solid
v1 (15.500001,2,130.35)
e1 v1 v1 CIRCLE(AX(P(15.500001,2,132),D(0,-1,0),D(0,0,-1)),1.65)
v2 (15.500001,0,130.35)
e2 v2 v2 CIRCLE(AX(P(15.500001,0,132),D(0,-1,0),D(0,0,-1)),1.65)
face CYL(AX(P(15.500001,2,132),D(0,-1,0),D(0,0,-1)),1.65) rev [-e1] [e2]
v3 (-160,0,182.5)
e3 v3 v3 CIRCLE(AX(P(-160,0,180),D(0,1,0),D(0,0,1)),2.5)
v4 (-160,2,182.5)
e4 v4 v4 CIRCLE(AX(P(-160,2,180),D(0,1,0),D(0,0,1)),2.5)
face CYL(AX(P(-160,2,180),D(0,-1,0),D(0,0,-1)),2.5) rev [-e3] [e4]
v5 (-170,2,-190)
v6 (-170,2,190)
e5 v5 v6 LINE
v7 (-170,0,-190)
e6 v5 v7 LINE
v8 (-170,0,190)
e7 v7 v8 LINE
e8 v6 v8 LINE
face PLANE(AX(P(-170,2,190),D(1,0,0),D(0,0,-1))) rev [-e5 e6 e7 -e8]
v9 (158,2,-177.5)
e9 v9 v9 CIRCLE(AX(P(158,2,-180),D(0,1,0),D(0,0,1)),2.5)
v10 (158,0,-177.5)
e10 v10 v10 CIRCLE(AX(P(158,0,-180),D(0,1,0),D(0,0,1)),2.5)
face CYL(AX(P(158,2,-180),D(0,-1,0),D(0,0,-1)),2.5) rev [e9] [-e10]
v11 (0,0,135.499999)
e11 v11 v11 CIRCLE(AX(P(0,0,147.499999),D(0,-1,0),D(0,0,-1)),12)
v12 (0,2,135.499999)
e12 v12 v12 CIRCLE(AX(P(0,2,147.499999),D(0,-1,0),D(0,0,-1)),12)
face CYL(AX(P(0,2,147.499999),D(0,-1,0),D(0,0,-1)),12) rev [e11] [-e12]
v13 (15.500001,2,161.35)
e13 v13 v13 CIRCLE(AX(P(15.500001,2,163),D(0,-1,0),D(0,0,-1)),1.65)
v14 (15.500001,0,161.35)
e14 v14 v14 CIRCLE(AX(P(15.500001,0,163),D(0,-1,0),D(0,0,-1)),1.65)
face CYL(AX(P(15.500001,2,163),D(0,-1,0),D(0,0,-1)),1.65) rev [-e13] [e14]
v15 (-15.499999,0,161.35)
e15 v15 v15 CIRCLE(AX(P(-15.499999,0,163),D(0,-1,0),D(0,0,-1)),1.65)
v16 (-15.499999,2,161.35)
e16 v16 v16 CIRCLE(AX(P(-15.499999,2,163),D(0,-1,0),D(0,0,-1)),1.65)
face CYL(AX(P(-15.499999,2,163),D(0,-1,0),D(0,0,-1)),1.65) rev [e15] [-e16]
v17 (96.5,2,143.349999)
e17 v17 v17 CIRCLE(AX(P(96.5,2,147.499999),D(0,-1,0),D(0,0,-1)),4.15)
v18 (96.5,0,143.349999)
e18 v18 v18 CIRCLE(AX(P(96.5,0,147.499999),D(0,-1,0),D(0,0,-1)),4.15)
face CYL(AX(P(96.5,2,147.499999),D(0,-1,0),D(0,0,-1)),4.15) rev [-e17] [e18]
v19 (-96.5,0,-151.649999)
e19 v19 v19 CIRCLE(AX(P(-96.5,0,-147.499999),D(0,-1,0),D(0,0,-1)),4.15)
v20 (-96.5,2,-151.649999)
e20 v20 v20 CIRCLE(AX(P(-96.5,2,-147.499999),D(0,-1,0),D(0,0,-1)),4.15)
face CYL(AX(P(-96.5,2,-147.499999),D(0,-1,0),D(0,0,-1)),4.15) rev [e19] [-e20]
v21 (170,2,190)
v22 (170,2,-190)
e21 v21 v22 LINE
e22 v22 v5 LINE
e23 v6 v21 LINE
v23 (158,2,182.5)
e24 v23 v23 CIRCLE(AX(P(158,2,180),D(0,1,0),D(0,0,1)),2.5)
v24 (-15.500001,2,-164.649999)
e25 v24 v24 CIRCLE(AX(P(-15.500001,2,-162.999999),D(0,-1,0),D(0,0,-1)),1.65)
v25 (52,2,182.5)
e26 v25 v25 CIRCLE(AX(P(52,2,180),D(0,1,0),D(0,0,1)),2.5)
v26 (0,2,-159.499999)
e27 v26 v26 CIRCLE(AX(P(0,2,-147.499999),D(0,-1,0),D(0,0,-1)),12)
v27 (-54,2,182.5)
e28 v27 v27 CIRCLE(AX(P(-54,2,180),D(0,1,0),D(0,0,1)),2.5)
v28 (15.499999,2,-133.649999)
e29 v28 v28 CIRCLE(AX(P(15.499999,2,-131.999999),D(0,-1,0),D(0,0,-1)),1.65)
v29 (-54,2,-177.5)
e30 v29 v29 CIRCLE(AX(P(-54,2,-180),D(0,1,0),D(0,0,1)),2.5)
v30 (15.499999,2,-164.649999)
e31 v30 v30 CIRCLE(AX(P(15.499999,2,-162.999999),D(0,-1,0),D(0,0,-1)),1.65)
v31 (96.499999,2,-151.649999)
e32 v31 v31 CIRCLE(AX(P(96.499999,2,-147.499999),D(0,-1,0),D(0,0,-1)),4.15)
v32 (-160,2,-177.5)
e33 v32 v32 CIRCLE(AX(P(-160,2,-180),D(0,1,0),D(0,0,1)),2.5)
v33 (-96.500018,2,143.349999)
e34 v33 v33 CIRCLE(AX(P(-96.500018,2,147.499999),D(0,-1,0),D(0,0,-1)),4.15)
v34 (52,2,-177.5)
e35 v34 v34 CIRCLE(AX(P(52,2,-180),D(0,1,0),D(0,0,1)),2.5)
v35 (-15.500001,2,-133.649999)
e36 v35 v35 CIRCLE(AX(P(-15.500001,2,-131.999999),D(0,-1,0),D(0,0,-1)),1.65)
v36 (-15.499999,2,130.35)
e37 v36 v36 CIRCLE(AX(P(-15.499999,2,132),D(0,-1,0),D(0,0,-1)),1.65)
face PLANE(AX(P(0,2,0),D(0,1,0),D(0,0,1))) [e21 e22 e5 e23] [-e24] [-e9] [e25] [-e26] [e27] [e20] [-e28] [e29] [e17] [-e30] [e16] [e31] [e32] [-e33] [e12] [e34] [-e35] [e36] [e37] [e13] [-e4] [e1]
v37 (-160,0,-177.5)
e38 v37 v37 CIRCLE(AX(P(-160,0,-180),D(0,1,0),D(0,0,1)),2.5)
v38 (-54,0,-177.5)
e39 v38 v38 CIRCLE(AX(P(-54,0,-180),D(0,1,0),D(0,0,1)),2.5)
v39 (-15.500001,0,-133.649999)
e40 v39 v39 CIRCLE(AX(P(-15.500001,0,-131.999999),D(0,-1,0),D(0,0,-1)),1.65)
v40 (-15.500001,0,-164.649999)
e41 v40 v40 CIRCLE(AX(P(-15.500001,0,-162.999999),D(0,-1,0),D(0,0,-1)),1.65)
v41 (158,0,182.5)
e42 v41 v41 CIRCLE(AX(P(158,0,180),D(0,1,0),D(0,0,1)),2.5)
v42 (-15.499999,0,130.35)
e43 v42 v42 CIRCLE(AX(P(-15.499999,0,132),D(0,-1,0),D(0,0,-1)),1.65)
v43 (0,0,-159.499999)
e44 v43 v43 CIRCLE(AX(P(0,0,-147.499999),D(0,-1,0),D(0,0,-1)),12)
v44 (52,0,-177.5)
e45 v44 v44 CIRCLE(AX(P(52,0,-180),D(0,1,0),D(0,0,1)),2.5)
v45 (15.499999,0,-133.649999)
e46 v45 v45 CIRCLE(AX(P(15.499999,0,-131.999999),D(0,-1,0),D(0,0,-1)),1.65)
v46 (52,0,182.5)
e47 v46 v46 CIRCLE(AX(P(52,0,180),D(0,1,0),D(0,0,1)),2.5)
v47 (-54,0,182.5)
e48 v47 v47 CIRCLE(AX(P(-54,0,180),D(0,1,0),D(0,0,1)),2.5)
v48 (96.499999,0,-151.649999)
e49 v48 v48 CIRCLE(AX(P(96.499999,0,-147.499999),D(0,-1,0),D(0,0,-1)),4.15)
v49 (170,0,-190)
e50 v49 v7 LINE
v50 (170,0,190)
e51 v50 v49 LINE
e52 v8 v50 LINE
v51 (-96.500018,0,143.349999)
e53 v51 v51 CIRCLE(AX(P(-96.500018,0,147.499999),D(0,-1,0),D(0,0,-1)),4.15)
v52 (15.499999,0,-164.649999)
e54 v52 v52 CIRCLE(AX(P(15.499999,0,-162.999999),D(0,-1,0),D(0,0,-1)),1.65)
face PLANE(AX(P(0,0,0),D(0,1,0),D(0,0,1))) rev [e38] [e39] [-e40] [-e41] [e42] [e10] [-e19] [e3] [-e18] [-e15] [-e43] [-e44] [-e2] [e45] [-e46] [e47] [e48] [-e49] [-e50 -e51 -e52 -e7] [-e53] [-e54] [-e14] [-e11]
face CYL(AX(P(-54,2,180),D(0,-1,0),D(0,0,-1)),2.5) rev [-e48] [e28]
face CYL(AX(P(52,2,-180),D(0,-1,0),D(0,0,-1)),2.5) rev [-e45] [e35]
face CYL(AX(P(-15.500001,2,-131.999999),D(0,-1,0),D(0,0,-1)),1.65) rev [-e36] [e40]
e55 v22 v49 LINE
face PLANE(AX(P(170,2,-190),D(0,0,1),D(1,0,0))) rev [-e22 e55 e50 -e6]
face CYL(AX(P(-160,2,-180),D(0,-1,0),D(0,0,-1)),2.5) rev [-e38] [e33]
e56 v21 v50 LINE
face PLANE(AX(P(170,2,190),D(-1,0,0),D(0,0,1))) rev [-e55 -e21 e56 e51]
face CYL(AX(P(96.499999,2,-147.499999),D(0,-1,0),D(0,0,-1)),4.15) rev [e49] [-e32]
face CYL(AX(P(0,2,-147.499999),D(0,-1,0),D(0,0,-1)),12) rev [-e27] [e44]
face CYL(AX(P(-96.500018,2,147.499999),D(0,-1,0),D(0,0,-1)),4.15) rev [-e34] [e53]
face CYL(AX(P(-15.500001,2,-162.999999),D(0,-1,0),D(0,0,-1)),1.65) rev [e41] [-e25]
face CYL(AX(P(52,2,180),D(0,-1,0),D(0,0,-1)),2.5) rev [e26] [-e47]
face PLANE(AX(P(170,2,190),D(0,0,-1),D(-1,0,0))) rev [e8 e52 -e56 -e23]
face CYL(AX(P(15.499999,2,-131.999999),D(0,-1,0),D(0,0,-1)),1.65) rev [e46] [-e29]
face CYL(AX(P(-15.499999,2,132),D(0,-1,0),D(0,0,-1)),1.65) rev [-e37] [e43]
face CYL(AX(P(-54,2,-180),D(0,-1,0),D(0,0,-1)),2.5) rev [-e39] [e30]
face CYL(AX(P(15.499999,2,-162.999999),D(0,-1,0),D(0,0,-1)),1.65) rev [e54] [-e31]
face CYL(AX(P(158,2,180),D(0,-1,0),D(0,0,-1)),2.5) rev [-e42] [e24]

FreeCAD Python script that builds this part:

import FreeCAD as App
import Part
import Sketcher


def add_polygon(sketch, points):
    """Adds a closed chain of lines whose ends are joined by coincident constraints."""
    first, n = sketch.GeometryCount, len(points)
    for a, b in zip(points, points[1:] + points[:1]):
        sketch.addGeometry(Part.LineSegment(App.Vector(*a, 0), App.Vector(*b, 0)), False)
    for i in range(n):
        sketch.addConstraint(Sketcher.Constraint("Coincident", first + i, 2, first + (i + 1) % n, 1))

doc = App.newDocument("Part")
body = doc.addObject("PartDesign::Body", "Body")

sketch1 = body.newObject("Sketcher::SketchObject", "Sketch")
sketch1.AttachmentSupport = (doc.getObject("XZ_Plane"), [""])
sketch1.MapMode = "FlatFace"
add_polygon(sketch1, [(-170, -190), (-170, 190), (170, 190), (170, -190)])
sketch1.addGeometry(Part.Circle(App.Vector(-160, 180, 0), App.Vector(0, 0, 1), 2.5), False)
sketch1.addGeometry(Part.Circle(App.Vector(-54, 180, 0), App.Vector(0, 0, 1), 2.5), False)
sketch1.addGeometry(Part.Circle(App.Vector(52, 180, 0), App.Vector(0, 0, 1), 2.5), False)
sketch1.addGeometry(Part.Circle(App.Vector(158, 180, 0), App.Vector(0, 0, 1), 2.5), False)
sketch1.addGeometry(Part.Circle(App.Vector(-160, -180, 0), App.Vector(0, 0, 1), 2.5), False)
sketch1.addGeometry(Part.Circle(App.Vector(-54, -180, 0), App.Vector(0, 0, 1), 2.5), False)
sketch1.addGeometry(Part.Circle(App.Vector(52, -180, 0), App.Vector(0, 0, 1), 2.5), False)
sketch1.addGeometry(Part.Circle(App.Vector(158, -180, 0), App.Vector(0, 0, 1), 2.5), False)
sketch1.addConstraint(Sketcher.Constraint("Vertical", 0))
sketch1.addConstraint(Sketcher.Constraint("Horizontal", 1))
sketch1.addConstraint(Sketcher.Constraint("Vertical", 2))
sketch1.addConstraint(Sketcher.Constraint("Horizontal", 3))
sketch1.addConstraint(Sketcher.Constraint("Equal", 4, 5))
sketch1.addConstraint(Sketcher.Constraint("Equal", 5, 6))
sketch1.addConstraint(Sketcher.Constraint("Equal", 6, 7))
sketch1.addConstraint(Sketcher.Constraint("Equal", 7, 8))
sketch1.addConstraint(Sketcher.Constraint("Equal", 8, 9))
sketch1.addConstraint(Sketcher.Constraint("Equal", 9, 10))
sketch1.addConstraint(Sketcher.Constraint("Equal", 10, 11))
sketch1.addConstraint(Sketcher.Constraint("Symmetric", 0, 2, 2, 2, -1, 1))
sketch1.addConstraint(Sketcher.Constraint("Symmetric", 4, 3, 8, 3, -1))
sketch1.addConstraint(Sketcher.Constraint("Symmetric", 5, 3, 9, 3, -1))
sketch1.addConstraint(Sketcher.Constraint("Symmetric", 6, 3, 10, 3, -1))
sketch1.addConstraint(Sketcher.Constraint("Symmetric", 7, 3, 11, 3, -1))
sketch1.addConstraint(Sketcher.Constraint("Horizontal", 4, 3, 5, 3))
sketch1.addConstraint(Sketcher.Constraint("Horizontal", 5, 3, 6, 3))
sketch1.addConstraint(Sketcher.Constraint("Horizontal", 6, 3, 7, 3))
sketch1.addConstraint(Sketcher.Constraint("Diameter", 4, 5.0))
sketch1.addConstraint(Sketcher.Constraint("DistanceX", 1, 1, 1, 2, 340.0))
sketch1.addConstraint(Sketcher.Constraint("DistanceY", 0, 1, 0, 2, 380.0))
sketch1.addConstraint(Sketcher.Constraint("DistanceX", 4, 3, -1, 1, 160.0))
sketch1.addConstraint(Sketcher.Constraint("DistanceY", -1, 1, 4, 3, 180.0))
sketch1.addConstraint(Sketcher.Constraint("DistanceX", 5, 3, -1, 1, 54.0))
sketch1.addConstraint(Sketcher.Constraint("DistanceX", -1, 1, 6, 3, 52.0))
sketch1.addConstraint(Sketcher.Constraint("DistanceX", -1, 1, 7, 3, 158.0))
pad1 = body.newObject("PartDesign::Pad", "Pad")
pad1.Profile = sketch1
pad1.Length = 2
pad1.Reversed = True

sketch2 = body.newObject("Sketcher::SketchObject", "Sketch001")
sketch2.AttachmentSupport = (doc.getObject("XZ_Plane"), [""])
sketch2.MapMode = "FlatFace"
sketch2.addGeometry(Part.Circle(App.Vector(15.5, 163, 0), App.Vector(0, 0, 1), 1.7), False)
sketch2.addGeometry(Part.Circle(App.Vector(-15.5, 163, 0), App.Vector(0, 0, 1), 1.7), False)
sketch2.addGeometry(Part.Circle(App.Vector(-15.5, 132, 0), App.Vector(0, 0, 1), 1.7), False)
sketch2.addGeometry(Part.Circle(App.Vector(15.5, 132, 0), App.Vector(0, 0, 1), 1.7), False)
sketch2.addGeometry(Part.Circle(App.Vector(15.5, -163, 0), App.Vector(0, 0, 1), 1.6), False)
sketch2.addGeometry(Part.Circle(App.Vector(-15.5, -163, 0), App.Vector(0, 0, 1), 1.6), False)
sketch2.addGeometry(Part.Circle(App.Vector(-15.5, -132, 0), App.Vector(0, 0, 1), 1.6), False)
sketch2.addGeometry(Part.Circle(App.Vector(15.5, -132, 0), App.Vector(0, 0, 1), 1.6), False)
sketch2.addGeometry(Part.Circle(App.Vector(96.5, -147.5, 0), App.Vector(0, 0, 1), 4.2), False)
sketch2.addGeometry(Part.Circle(App.Vector(-96.5, -147.5, 0), App.Vector(0, 0, 1), 4.1), False)
sketch2.addGeometry(Part.Circle(App.Vector(-96.5, 147.5, 0), App.Vector(0, 0, 1), 4.1), False)
sketch2.addGeometry(Part.Circle(App.Vector(96.5, 147.5, 0), App.Vector(0, 0, 1), 4.2), False)
sketch2.addGeometry(Part.Circle(App.Vector(0, -147.5, 0), App.Vector(0, 0, 1), 12), False)
sketch2.addGeometry(Part.Circle(App.Vector(0, 147.5, 0), App.Vector(0, 0, 1), 12), False)
sketch2.addConstraint(Sketcher.Constraint("Equal", 0, 1))
sketch2.addConstraint(Sketcher.Constraint("Equal", 1, 2))
sketch2.addConstraint(Sketcher.Constraint("Equal", 2, 3))
sketch2.addConstraint(Sketcher.Constraint("Equal", 3, 4))
sketch2.addConstraint(Sketcher.Constraint("Equal", 4, 5))
sketch2.addConstraint(Sketcher.Constraint("Equal", 5, 6))
sketch2.addConstraint(Sketcher.Constraint("Equal", 6, 7))
sketch2.addConstraint(Sketcher.Constraint("Equal", 8, 9))
sketch2.addConstraint(Sketcher.Constraint("Equal", 9, 10))
sketch2.addConstraint(Sketcher.Constraint("Equal", 10, 11))
sketch2.addConstraint(Sketcher.Constraint("Equal", 12, 13))
sketch2.addConstraint(Sketcher.Constraint("Symmetric", 1, 3, 4, 3, -1, 1))
sketch2.addConstraint(Sketcher.Constraint("Symmetric", 0, 3, 5, 3, -1, 1))
sketch2.addConstraint(Sketcher.Constraint("Symmetric", 3, 3, 6, 3, -1, 1))
sketch2.addConstraint(Sketcher.Constraint("Symmetric", 2, 3, 7, 3, -1, 1))
sketch2.addConstraint(Sketcher.Constraint("Symmetric", 9, 3, 11, 3, -1, 1))
sketch2.addConstraint(Sketcher.Constraint("Symmetric", 12, 3, 13, 3, -1, 1))
sketch2.addConstraint(Sketcher.Constraint("Symmetric", 0, 3, 1, 3, -2))
sketch2.addConstraint(Sketcher.Constraint("Symmetric", 2, 3, 3, 3, -2))
sketch2.addConstraint(Sketcher.Constraint("Symmetric", 8, 3, 9, 3, -2))
sketch2.addConstraint(Sketcher.Constraint("PointOnObject", 12, 3, -2))
sketch2.addConstraint(Sketcher.Constraint("Horizontal", 10, 3, 11, 3))
sketch2.addConstraint(Sketcher.Constraint("Horizontal", 9, 3, 12, 3))
sketch2.addConstraint(Sketcher.Constraint("Vertical", 1, 3, 2, 3))
sketch2.addConstraint(Sketcher.Constraint("Diameter", 12, 24.0))
sketch2.addConstraint(Sketcher.Constraint("Diameter", 0, 3.3))
sketch2.addConstraint(Sketcher.Constraint("Diameter", 8, 8.3))
sketch2.addConstraint(Sketcher.Constraint("DistanceY", -1, 1, 0, 3, 163.0))
sketch2.addConstraint(Sketcher.Constraint("DistanceY", -1, 1, 2, 3, 132.0))
sketch2.addConstraint(Sketcher.Constraint("DistanceX", 1, 3, 0, 3, 31.0))
sketch2.addConstraint(Sketcher.Constraint("DistanceX", 7, 3, 8, 3, 81.0))
sketch2.addConstraint(Sketcher.Constraint("DistanceY", 8, 3, -1, 1, 147.499999))
sketch2.addConstraint(Sketcher.Constraint("DistanceX", 10, 3, 2, 3, 81.000018))
pocket1 = body.newObject("PartDesign::Pocket", "Pocket")
pocket1.Profile = sketch2
pocket1.Length = 2

doc.recompute()
